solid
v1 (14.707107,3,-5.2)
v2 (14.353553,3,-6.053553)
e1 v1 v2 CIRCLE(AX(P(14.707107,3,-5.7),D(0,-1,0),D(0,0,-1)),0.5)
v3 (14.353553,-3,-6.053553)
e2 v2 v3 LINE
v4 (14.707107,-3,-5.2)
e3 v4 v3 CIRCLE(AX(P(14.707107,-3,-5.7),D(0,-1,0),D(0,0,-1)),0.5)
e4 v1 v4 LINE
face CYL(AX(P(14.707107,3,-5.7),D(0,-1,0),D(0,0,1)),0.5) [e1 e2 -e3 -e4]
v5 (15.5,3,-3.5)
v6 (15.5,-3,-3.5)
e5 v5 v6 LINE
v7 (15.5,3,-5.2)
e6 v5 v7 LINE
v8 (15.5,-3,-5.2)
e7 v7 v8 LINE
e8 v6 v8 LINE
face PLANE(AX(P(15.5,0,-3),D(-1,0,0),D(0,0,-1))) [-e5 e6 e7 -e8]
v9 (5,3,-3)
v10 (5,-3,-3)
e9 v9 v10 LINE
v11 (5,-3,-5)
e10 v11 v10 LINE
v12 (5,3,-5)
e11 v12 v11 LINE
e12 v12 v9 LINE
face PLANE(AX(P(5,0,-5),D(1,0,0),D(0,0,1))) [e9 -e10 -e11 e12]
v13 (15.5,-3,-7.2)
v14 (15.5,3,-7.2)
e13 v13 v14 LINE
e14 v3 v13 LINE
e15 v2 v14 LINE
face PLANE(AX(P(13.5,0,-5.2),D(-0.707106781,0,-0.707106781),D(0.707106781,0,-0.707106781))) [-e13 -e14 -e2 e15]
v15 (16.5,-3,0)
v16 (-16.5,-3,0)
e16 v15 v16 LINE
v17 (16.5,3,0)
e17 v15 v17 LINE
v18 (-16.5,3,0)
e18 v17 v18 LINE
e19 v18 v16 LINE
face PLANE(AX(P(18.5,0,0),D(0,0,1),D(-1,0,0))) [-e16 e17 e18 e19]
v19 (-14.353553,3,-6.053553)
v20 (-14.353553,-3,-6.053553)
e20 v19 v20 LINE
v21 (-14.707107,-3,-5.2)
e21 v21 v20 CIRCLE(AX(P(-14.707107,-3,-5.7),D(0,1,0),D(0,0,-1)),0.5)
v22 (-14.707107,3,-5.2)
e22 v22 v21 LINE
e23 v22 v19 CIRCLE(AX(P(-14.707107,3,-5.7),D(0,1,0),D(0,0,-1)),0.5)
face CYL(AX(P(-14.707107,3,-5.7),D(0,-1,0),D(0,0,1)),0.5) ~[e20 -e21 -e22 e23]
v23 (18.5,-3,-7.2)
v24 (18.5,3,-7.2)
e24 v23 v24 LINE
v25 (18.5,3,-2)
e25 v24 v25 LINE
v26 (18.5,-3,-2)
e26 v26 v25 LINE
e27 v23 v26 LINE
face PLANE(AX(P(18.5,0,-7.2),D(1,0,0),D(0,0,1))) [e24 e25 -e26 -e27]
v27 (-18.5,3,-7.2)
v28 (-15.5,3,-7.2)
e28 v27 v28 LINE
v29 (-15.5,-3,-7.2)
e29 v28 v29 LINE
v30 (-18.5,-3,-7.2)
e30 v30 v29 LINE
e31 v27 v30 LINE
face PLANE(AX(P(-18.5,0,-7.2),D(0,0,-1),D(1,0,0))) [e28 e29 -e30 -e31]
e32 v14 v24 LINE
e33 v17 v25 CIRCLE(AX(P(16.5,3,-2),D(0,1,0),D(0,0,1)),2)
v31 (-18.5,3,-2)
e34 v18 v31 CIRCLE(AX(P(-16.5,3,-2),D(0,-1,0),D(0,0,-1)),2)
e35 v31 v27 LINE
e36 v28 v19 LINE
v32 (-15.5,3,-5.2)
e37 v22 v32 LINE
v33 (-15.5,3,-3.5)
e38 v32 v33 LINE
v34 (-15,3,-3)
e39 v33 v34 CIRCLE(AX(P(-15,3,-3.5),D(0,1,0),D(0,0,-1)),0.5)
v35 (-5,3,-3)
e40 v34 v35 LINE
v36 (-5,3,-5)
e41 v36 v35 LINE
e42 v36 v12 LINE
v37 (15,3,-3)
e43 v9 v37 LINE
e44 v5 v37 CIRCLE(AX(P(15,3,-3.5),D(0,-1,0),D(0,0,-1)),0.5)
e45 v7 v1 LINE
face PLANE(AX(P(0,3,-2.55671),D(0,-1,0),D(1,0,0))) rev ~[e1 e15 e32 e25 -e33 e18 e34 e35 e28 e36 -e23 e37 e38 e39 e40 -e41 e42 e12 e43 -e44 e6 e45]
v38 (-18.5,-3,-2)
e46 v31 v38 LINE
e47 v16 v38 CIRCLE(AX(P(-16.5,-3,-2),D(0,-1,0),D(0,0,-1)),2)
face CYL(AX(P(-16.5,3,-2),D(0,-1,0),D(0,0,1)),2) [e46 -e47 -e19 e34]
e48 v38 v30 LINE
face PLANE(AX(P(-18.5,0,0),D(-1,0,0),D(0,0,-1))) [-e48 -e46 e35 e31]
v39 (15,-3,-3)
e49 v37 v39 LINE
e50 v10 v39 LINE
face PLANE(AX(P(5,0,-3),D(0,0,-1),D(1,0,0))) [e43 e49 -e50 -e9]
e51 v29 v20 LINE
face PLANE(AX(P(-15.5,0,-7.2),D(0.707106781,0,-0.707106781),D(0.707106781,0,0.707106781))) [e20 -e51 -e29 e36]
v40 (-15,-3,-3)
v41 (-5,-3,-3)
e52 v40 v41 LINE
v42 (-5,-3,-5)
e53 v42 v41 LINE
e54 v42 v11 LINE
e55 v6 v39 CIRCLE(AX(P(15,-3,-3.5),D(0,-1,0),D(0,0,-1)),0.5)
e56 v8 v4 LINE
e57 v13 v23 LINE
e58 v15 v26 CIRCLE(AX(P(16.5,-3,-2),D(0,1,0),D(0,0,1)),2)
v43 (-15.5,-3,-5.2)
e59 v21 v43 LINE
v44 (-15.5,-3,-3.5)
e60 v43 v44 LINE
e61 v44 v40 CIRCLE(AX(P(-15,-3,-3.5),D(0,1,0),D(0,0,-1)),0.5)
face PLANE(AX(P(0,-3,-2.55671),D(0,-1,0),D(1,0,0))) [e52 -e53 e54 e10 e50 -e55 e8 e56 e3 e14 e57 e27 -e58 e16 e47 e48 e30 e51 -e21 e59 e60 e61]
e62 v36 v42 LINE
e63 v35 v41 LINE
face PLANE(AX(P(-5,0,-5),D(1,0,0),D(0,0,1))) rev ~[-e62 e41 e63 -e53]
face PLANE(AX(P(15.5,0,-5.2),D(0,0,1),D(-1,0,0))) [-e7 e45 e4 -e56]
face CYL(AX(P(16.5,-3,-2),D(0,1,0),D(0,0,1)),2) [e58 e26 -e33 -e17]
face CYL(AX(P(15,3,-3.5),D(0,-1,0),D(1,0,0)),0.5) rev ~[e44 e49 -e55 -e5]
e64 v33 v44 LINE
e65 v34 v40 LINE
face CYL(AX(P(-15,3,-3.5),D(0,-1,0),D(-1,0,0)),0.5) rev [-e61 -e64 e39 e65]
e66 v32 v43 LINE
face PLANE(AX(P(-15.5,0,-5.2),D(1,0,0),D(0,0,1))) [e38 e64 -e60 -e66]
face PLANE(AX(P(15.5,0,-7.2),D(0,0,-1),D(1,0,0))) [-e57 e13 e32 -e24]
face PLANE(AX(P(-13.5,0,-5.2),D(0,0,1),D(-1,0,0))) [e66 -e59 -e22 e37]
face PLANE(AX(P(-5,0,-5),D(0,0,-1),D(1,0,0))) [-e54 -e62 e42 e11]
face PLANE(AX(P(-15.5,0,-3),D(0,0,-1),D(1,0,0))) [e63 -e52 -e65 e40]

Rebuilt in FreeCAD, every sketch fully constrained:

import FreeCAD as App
import Part
import Sketcher
from FreeCAD import Vector


def edges_at(feature, points):
    """Names of the edges that pass closest to the given points."""
    edges = feature.Shape.Edges
    near = lambda p: min(range(len(edges)), key=lambda i: edges[i].distToShape(Part.Vertex(*p))[0])
    return sorted({f"Edge{near(p) + 1}" for p in points})

doc = App.newDocument("Part")
body = doc.addObject("PartDesign::Body", "Body")

sketch1 = body.newObject("Sketcher::SketchObject", "Sketch")
sketch1.AttachmentSupport = (doc.getObject("XZ_Plane"), [""])
sketch1.MapMode = "FlatFace"
sketch1.addGeometry(Part.LineSegment(Vector(18.5, 0, 0), Vector(-18.5, 0, 0)), False)
sketch1.addGeometry(Part.LineSegment(Vector(-18.5, 0, 0), Vector(-18.5, -7.2, 0)), False)
sketch1.addGeometry(Part.LineSegment(Vector(-18.5, -7.2, 0), Vector(-15.5, -7.2, 0)), False)
sketch1.addGeometry(Part.LineSegment(Vector(-15.5, -7.2, 0), Vector(-13.5, -5.2, 0)), False)
sketch1.addGeometry(Part.LineSegment(Vector(-13.5, -5.2, 0), Vector(-15.5, -5.2, 0)), False)
sketch1.addGeometry(Part.LineSegment(Vector(-15.5, -5.2, 0), Vector(-15.5, -3, 0)), False)
sketch1.addGeometry(Part.LineSegment(Vector(-15.5, -3, 0), Vector(-5, -3, 0)), False)
sketch1.addGeometry(Part.LineSegment(Vector(-5, -3, 0), Vector(-5, -5, 0)), False)
sketch1.addGeometry(Part.LineSegment(Vector(-5, -5, 0), Vector(5, -5, 0)), False)
sketch1.addGeometry(Part.LineSegment(Vector(5, -5, 0), Vector(5, -3, 0)), False)
sketch1.addGeometry(Part.LineSegment(Vector(5, -3, 0), Vector(15.5, -3, 0)), False)
sketch1.addGeometry(Part.LineSegment(Vector(15.5, -3, 0), Vector(15.5, -5.2, 0)), False)
sketch1.addGeometry(Part.LineSegment(Vector(15.5, -5.2, 0), Vector(13.5, -5.2, 0)), False)
sketch1.addGeometry(Part.LineSegment(Vector(13.5, -5.2, 0), Vector(15.5, -7.2, 0)), False)
sketch1.addGeometry(Part.LineSegment(Vector(15.5, -7.2, 0), Vector(18.5, -7.2, 0)), False)
sketch1.addGeometry(Part.LineSegment(Vector(18.5, -7.2, 0), Vector(18.5, 0, 0)), False)
sketch1.addConstraint(Sketcher.Constraint("Coincident", 0, 2, 1, 1))
sketch1.addConstraint(Sketcher.Constraint("Coincident", 1, 2, 2, 1))
sketch1.addConstraint(Sketcher.Constraint("Coincident", 2, 2, 3, 1))
sketch1.addConstraint(Sketcher.Constraint("Coincident", 3, 2, 4, 1))
sketch1.addConstraint(Sketcher.Constraint("Coincident", 4, 2, 5, 1))
sketch1.addConstraint(Sketcher.Constraint("Coincident", 5, 2, 6, 1))
sketch1.addConstraint(Sketcher.Constraint("Coincident", 6, 2, 7, 1))
sketch1.addConstraint(Sketcher.Constraint("Coincident", 7, 2, 8, 1))
sketch1.addConstraint(Sketcher.Constraint("Coincident", 8, 2, 9, 1))
sketch1.addConstraint(Sketcher.Constraint("Coincident", 9, 2, 10, 1))
sketch1.addConstraint(Sketcher.Constraint("Coincident", 10, 2, 11, 1))
sketch1.addConstraint(Sketcher.Constraint("Coincident", 11, 2, 12, 1))
sketch1.addConstraint(Sketcher.Constraint("Coincident", 12, 2, 13, 1))
sketch1.addConstraint(Sketcher.Constraint("Coincident", 13, 2, 14, 1))
sketch1.addConstraint(Sketcher.Constraint("Coincident", 14, 2, 15, 1))
sketch1.addConstraint(Sketcher.Constraint("Coincident", 15, 2, 0, 1))
sketch1.addConstraint(Sketcher.Constraint("Horizontal", 0))
sketch1.addConstraint(Sketcher.Constraint("Vertical", 1))
sketch1.addConstraint(Sketcher.Constraint("Horizontal", 2))
sketch1.addConstraint(Sketcher.Constraint("Horizontal", 4))
sketch1.addConstraint(Sketcher.Constraint("Vertical", 5))
sketch1.addConstraint(Sketcher.Constraint("Horizontal", 6))
sketch1.addConstraint(Sketcher.Constraint("Vertical", 7))
sketch1.addConstraint(Sketcher.Constraint("Horizontal", 8))
sketch1.addConstraint(Sketcher.Constraint("Vertical", 9))
sketch1.addConstraint(Sketcher.Constraint("Horizontal", 10))
sketch1.addConstraint(Sketcher.Constraint("Vertical", 11))
sketch1.addConstraint(Sketcher.Constraint("Horizontal", 12))
sketch1.addConstraint(Sketcher.Constraint("Horizontal", 14))
sketch1.addConstraint(Sketcher.Constraint("Vertical", 15))
sketch1.addConstraint(Sketcher.Constraint("Symmetric", 0, 2, 15, 2, -1, 1))
sketch1.addConstraint(Sketcher.Constraint("Symmetric", 6, 2, 9, 2, -2))
sketch1.addConstraint(Sketcher.Constraint("Symmetric", 4, 2, 11, 2, -2))
sketch1.addConstraint(Sketcher.Constraint("Symmetric", 2, 2, 13, 2, -2))
sketch1.addConstraint(Sketcher.Constraint("Perpendicular", 3, 13))
sketch1.addConstraint(Sketcher.Constraint("Vertical", 2, 2, 4, 2))
sketch1.addConstraint(Sketcher.Constraint("Equal", 4, 12))
sketch1.addConstraint(Sketcher.Constraint("Equal", 12, 7))
sketch1.addConstraint(Sketcher.Constraint("DistanceX", 0, 2, 0, 1, 37.0))
sketch1.addConstraint(Sketcher.Constraint("DistanceX", 2, 1, 2, 2, 3.0))
sketch1.addConstraint(Sketcher.Constraint("DistanceX", 4, 2, 4, 1, 2.0))
sketch1.addConstraint(Sketcher.Constraint("DistanceX", 8, 1, 8, 2, 10.0))
sketch1.addConstraint(Sketcher.Constraint("DistanceY", 1, 2, 1, 1, 7.2))
sketch1.addConstraint(Sketcher.Constraint("DistanceY", 5, 1, 5, 2, 2.2))
pad1 = body.newObject("PartDesign::Pad", "Pad")
pad1.Profile = sketch1
pad1.Length = 6
pad1.Midplane = True
doc.recompute()

fillet = body.newObject("PartDesign::Fillet", "Fillet")
fillet.Base = (pad1, edges_at(pad1, [(18.5, 0, 0), (-18.5, 0, 0)]))
fillet.Radius = 2
doc.recompute()

fillet2 = body.newObject("PartDesign::Fillet", "Fillet001")
fillet2.Base = (fillet, edges_at(fillet, [(15.5, 0, -3), (-15.5, 0, -3)]))
fillet2.Radius = 0.5
doc.recompute()

fillet3 = body.newObject("PartDesign::Fillet", "Fillet002")
fillet3.Base = (fillet2, edges_at(fillet2, [(13.5, 0, -5.2), (-13.5, 0, -5.2)]))
fillet3.Radius = 0.5

doc.recompute()
